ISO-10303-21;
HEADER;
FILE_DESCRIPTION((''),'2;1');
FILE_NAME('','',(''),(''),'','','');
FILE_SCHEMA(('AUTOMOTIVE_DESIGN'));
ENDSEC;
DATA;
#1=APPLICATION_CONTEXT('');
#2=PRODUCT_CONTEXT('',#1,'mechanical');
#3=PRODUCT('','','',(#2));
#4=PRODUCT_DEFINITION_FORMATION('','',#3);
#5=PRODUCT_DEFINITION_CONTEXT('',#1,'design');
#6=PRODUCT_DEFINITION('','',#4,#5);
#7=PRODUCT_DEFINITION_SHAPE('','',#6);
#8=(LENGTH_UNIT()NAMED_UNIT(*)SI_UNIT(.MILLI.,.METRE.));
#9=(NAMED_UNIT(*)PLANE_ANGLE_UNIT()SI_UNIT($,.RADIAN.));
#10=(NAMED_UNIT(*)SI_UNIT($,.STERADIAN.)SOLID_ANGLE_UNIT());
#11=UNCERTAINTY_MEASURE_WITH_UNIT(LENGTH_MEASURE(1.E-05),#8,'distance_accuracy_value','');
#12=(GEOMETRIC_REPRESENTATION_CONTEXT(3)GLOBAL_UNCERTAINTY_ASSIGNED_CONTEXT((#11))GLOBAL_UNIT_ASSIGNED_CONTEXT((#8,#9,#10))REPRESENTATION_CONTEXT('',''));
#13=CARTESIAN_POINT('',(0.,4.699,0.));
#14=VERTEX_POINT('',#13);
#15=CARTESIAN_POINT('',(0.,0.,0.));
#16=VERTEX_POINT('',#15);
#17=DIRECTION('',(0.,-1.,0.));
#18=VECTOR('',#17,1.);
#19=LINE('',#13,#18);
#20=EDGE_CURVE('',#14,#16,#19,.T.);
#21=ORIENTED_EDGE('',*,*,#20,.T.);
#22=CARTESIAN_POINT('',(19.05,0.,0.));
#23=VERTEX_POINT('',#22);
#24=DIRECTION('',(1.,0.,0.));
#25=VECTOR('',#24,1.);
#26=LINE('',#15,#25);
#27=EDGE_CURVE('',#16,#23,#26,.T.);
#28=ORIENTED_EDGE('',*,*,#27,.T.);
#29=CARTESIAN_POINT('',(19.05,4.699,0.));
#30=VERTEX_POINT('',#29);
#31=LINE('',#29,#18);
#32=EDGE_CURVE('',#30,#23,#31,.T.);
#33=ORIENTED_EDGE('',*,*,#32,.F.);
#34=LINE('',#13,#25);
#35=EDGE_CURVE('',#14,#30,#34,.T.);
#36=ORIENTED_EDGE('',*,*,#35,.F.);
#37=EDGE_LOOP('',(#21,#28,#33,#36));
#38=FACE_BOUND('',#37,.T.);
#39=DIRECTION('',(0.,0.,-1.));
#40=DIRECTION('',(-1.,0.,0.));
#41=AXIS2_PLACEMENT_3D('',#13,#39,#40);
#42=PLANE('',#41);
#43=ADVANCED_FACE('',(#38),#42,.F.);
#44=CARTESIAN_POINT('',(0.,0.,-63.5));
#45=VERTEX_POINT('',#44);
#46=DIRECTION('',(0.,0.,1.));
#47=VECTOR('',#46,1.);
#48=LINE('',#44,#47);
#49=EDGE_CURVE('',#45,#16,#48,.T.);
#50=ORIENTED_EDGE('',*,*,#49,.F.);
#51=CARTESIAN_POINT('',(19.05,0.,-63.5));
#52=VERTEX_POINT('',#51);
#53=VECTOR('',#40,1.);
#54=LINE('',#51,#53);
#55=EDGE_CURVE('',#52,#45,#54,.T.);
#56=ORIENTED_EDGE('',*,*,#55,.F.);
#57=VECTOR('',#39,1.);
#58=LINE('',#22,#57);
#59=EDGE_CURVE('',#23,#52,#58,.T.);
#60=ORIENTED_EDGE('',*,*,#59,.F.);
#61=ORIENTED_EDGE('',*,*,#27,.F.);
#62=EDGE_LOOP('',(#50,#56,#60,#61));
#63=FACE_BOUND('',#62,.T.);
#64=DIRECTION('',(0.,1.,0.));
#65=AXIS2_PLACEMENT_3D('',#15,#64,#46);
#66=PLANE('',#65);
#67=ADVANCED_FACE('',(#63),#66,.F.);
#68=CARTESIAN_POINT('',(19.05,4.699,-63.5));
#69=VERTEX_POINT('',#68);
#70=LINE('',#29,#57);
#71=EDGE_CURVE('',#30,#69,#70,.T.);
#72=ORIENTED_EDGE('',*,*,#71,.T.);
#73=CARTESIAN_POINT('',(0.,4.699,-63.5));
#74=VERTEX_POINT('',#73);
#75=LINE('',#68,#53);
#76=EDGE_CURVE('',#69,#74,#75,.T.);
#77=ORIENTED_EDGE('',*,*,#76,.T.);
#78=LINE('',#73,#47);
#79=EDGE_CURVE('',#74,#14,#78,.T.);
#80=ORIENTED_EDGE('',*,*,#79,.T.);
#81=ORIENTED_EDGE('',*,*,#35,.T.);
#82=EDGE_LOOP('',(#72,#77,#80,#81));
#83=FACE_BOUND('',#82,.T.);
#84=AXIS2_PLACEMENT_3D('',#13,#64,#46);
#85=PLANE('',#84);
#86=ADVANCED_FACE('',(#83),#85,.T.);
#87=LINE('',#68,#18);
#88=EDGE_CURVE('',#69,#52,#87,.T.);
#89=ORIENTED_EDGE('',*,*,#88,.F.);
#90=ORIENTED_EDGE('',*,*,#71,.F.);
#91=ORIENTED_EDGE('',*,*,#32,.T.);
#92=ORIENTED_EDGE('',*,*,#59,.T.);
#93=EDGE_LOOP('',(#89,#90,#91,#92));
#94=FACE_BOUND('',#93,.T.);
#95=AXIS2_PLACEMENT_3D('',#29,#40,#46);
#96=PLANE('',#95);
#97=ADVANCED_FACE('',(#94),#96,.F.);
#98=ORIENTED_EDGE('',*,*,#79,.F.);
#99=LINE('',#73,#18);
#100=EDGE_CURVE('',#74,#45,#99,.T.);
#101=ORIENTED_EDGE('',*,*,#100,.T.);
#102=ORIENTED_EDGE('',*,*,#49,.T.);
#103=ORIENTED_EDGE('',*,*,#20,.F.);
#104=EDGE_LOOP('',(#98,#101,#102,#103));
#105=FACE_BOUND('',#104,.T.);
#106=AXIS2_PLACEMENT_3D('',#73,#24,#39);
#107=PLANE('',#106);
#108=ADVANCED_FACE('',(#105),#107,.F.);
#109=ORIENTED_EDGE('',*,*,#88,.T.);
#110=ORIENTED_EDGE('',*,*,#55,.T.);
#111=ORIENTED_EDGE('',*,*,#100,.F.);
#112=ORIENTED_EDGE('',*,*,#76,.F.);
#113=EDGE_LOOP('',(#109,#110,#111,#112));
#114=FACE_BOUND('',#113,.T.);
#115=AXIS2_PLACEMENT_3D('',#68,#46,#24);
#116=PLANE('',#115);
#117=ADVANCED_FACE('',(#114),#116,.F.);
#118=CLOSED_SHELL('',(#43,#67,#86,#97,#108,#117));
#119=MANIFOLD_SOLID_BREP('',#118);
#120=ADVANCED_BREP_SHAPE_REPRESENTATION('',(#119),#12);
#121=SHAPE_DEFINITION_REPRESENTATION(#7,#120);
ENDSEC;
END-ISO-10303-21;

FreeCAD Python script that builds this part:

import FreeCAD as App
import Part
import Sketcher
from FreeCAD import Vector
Q = App.Units.Quantity


def add_polygon(sketch, points):
    """Adds a closed chain of lines whose ends are joined by coincident constraints."""
    first, n = sketch.GeometryCount, len(points)
    for a, b in zip(points, points[1:] + points[:1]):
        sketch.addGeometry(Part.LineSegment(App.Vector(*a, 0), App.Vector(*b, 0)), False)
    for i in range(n):
        sketch.addConstraint(Sketcher.Constraint("Coincident", first + i, 2, first + (i + 1) % n, 1))

doc = App.newDocument("Part")
body = doc.addObject("PartDesign::Body", "Body")

# Sketch on XZ plane
sketch1 = body.newObject("Sketcher::SketchObject", "Sketch")
sketch1.AttachmentSupport = (doc.getObject("XZ_Plane"), [""])
sketch1.MapMode = "FlatFace"
add_polygon(sketch1, [(0, -63.5), (0, 0), (19.05, 0), (19.05, -63.5)])  # lines 0-3
sketch1.addConstraint(Sketcher.Constraint("Vertical", 0))
sketch1.addConstraint(Sketcher.Constraint("Horizontal", 1))
sketch1.addConstraint(Sketcher.Constraint("Vertical", 2))
sketch1.addConstraint(Sketcher.Constraint("Horizontal", 3))
sketch1.addConstraint(Sketcher.Constraint("Coincident", 0, 2, -1, 1))
sketch1.addConstraint(Sketcher.Constraint("DistanceY", 0, 1, 0, 2, Q("2.5 in")))
sketch1.addConstraint(Sketcher.Constraint("DistanceX", 1, 1, 1, 2, Q("0.75 in")))
pad1 = body.newObject("PartDesign::Pad", "Pad")
pad1.Profile = sketch1
pad1.Length = Q("0.185 in")
pad1.Reversed = True

doc.recompute()
